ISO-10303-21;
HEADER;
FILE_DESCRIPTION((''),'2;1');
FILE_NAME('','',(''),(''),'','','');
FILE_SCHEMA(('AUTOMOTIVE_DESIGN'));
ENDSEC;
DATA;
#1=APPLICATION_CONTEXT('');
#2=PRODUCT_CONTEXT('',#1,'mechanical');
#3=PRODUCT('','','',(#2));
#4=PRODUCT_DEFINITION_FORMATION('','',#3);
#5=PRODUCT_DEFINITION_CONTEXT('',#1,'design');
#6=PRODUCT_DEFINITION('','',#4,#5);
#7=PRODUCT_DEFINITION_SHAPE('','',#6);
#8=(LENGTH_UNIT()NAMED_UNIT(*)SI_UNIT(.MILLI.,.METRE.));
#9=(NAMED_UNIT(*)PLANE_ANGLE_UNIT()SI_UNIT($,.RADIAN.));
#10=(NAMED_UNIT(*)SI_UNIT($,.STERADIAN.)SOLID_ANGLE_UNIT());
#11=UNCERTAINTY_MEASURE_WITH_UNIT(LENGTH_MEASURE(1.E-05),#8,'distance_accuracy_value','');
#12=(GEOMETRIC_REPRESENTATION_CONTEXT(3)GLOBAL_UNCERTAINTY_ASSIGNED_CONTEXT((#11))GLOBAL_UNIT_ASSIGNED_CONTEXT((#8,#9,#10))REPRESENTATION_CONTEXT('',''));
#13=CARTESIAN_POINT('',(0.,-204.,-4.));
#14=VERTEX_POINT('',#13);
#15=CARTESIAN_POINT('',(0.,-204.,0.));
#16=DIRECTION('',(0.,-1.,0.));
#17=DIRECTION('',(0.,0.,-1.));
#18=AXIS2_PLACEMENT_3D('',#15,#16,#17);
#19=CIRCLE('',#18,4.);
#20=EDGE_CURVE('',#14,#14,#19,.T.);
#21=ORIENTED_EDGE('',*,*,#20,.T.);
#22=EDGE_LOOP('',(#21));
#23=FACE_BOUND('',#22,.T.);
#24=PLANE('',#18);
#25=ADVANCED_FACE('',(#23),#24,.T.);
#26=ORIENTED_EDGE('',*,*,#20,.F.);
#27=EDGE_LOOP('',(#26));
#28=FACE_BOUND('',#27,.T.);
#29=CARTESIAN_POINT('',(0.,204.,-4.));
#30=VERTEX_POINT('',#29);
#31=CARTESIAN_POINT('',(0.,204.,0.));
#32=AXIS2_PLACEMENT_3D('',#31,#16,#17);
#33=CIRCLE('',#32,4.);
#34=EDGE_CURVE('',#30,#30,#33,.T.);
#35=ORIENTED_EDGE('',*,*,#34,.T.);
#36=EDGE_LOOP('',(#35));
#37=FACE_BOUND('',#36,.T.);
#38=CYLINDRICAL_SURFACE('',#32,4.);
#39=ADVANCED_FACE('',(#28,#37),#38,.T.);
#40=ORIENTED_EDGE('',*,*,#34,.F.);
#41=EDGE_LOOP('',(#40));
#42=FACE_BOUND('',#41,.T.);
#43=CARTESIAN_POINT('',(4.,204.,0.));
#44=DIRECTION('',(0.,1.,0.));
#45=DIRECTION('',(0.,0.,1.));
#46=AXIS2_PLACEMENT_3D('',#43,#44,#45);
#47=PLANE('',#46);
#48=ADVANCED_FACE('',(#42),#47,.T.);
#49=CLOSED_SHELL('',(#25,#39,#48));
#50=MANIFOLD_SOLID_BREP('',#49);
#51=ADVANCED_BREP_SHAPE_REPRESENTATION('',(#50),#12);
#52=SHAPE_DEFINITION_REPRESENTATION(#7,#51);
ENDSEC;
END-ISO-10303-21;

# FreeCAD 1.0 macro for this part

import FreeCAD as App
import Part
import Sketcher
Q = App.Units.Quantity


def add_polygon(sketch, points):
    """Adds a closed chain of lines whose ends are joined by coincident constraints."""
    first, n = sketch.GeometryCount, len(points)
    for a, b in zip(points, points[1:] + points[:1]):
        sketch.addGeometry(Part.LineSegment(App.Vector(*a, 0), App.Vector(*b, 0)), False)
    for i in range(n):
        sketch.addConstraint(Sketcher.Constraint("Coincident", first + i, 2, first + (i + 1) % n, 1))

doc = App.newDocument("Part")
body = doc.addObject("PartDesign::Body", "Body")

sketch1 = doc.addObject("Sketcher::SketchObject", "Sketch")
body.addObject(sketch1)
sketch1.AttachmentSupport = (doc.XY_Plane, [""])
sketch1.MapMode = "FlatFace"
add_polygon(sketch1, [(0, 204), (0, -204), (4, -204), (4, 204)])
sketch1.addConstraint([
    Sketcher.Constraint("Vertical", 0),
    Sketcher.Constraint("Horizontal", 1),
    Sketcher.Constraint("Vertical", 2),
    Sketcher.Constraint("Horizontal", 3),
    Sketcher.Constraint("Symmetric", 0, 2, 3, 2, -1, 1),
    Sketcher.Constraint("DistanceX", 1, 1, 1, 2, Q("4 mm")),
    Sketcher.Constraint("DistanceY", 0, 2, 0, 1, Q("408 mm")),
])
revolution = doc.addObject("PartDesign::Revolution", "Revolution")
body.addObject(revolution)
revolution.Profile = sketch1
revolution.ReferenceAxis = (sketch1, ["V_Axis"])
revolution.Angle = 360

doc.recompute()
